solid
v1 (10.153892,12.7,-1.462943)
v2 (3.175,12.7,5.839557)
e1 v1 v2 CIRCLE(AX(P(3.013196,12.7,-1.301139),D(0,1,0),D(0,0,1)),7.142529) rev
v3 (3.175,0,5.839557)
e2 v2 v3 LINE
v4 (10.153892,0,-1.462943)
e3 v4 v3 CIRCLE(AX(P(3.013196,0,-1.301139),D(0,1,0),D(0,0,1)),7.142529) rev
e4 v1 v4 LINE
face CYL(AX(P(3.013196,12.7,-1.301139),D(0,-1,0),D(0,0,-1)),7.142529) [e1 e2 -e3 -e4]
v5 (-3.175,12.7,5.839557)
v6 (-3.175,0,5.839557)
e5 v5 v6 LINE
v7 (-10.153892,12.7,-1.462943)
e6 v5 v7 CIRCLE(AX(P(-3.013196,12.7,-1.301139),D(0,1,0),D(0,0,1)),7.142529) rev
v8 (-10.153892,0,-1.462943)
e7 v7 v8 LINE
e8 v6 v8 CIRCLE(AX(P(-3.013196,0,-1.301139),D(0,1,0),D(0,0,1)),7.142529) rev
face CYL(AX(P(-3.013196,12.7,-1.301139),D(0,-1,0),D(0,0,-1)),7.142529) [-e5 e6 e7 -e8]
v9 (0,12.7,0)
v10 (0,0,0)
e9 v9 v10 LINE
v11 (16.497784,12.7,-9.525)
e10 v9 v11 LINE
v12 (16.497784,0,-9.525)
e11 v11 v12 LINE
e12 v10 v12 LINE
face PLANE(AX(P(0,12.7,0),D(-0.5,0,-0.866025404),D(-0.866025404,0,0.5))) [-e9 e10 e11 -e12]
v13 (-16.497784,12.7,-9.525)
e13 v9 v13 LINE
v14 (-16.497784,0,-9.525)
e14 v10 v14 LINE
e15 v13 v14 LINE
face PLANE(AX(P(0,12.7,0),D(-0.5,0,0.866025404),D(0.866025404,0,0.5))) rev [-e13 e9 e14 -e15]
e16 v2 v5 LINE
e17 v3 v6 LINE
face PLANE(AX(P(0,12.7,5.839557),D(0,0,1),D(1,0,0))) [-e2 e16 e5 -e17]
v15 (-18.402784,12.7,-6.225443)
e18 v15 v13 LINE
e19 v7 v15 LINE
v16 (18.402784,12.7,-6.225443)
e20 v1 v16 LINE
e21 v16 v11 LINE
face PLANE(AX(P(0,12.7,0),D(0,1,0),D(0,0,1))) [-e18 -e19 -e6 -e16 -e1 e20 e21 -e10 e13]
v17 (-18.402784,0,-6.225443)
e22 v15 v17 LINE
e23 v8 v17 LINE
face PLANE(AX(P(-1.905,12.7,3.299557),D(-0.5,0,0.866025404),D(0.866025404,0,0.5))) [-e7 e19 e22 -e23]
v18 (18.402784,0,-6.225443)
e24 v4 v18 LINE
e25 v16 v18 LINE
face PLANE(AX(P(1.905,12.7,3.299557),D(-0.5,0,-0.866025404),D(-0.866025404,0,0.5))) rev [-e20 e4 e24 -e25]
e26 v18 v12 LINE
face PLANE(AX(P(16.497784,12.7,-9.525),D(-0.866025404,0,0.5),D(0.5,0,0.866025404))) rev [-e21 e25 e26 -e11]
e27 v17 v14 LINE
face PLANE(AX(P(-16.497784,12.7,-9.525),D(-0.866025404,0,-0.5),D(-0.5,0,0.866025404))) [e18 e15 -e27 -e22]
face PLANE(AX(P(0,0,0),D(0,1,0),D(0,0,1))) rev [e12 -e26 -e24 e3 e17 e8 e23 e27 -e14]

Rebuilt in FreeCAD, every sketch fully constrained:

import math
import FreeCAD as App
import Part
import Sketcher
Q = App.Units.Quantity

doc = App.newDocument("Part")
body = doc.addObject("PartDesign::Body", "Body")

sketch1 = body.newObject("Sketcher::SketchObject", "Sketch")
sketch1.AttachmentSupport = (doc.getObject("XZ_Plane"), [""])
sketch1.MapMode = "FlatFace"
sketch1.addGeometry([
    Part.LineSegment(App.Vector(16.5, -9.5, 0), App.Vector(0, 0, 0)),
    Part.LineSegment(App.Vector(0, 0, 0), App.Vector(-16.5, -9.5, 0)),
    Part.LineSegment(App.Vector(-16.5, -9.5, 0), App.Vector(-18.4, -6.2, 0)),
    Part.LineSegment(App.Vector(-18.4, -6.2, 0), App.Vector(-10.2, -1.5, 0)),
    Part.ArcOfCircle(Part.Circle(App.Vector(-3, -1.3, 0), App.Vector(0, 0, 1), 7.1), math.radians(91), math.radians(181)),
    Part.LineSegment(App.Vector(-3.2, 5.8, 0), App.Vector(3.2, 5.8, 0)),
    Part.ArcOfCircle(Part.Circle(App.Vector(3, -1.3, 0), App.Vector(0, 0, 1), 7.1), math.radians(-1), math.radians(89)),
    Part.LineSegment(App.Vector(10.2, -1.5, 0), App.Vector(18.4, -6.2, 0)),
    Part.LineSegment(App.Vector(18.4, -6.2, 0), App.Vector(16.5, -9.5, 0)),
], False)
sketch1.addConstraint([
    Sketcher.Constraint("Coincident", 0, 2, 1, 1),
    Sketcher.Constraint("Coincident", 1, 2, 2, 1),
    Sketcher.Constraint("Coincident", 2, 2, 3, 1),
    Sketcher.Constraint("Coincident", 3, 2, 4, 2),
    Sketcher.Constraint("Coincident", 4, 1, 5, 1),
    Sketcher.Constraint("Coincident", 5, 2, 6, 2),
    Sketcher.Constraint("Coincident", 6, 1, 7, 1),
    Sketcher.Constraint("Coincident", 7, 2, 8, 1),
    Sketcher.Constraint("Coincident", 8, 2, 0, 1),
    Sketcher.Constraint("Horizontal", 5),
    Sketcher.Constraint("Coincident", 0, 2, -1, 1),
    Sketcher.Constraint("Equal", 4, 6),
    Sketcher.Constraint("Symmetric", 4, 3, 6, 3, -2),
    Sketcher.Constraint("Symmetric", 2, 2, 7, 2, -2),
    Sketcher.Constraint("Symmetric", 1, 2, 8, 2, -2),
    Sketcher.Constraint("Perpendicular", 1, 2),
    Sketcher.Constraint("Perpendicular", 2, 3),
    Sketcher.Constraint("Parallel", 0, 7),
    Sketcher.Constraint("Angle", 0, Q("150 deg")),
    Sketcher.Constraint("DistanceX", 5, 1, 5, 2, Q("0.25 in")),
    Sketcher.Constraint("Distance", 0, Q("0.75 in")),
    Sketcher.Constraint("Distance", 2, Q("0.15 in")),
    Sketcher.Constraint("Distance", 3, Q("0.375 in")),
    Sketcher.Constraint("Radius", 4, Q("7.142529 mm")),
    Sketcher.Constraint("DistanceY", 2, 2, 4, 1, Q("0.475 in")),
])
pad1 = body.newObject("PartDesign::Pad", "Pad")
pad1.Profile = sketch1
pad1.Length = Q("0.5 in")
pad1.Reversed = True

doc.recompute()
